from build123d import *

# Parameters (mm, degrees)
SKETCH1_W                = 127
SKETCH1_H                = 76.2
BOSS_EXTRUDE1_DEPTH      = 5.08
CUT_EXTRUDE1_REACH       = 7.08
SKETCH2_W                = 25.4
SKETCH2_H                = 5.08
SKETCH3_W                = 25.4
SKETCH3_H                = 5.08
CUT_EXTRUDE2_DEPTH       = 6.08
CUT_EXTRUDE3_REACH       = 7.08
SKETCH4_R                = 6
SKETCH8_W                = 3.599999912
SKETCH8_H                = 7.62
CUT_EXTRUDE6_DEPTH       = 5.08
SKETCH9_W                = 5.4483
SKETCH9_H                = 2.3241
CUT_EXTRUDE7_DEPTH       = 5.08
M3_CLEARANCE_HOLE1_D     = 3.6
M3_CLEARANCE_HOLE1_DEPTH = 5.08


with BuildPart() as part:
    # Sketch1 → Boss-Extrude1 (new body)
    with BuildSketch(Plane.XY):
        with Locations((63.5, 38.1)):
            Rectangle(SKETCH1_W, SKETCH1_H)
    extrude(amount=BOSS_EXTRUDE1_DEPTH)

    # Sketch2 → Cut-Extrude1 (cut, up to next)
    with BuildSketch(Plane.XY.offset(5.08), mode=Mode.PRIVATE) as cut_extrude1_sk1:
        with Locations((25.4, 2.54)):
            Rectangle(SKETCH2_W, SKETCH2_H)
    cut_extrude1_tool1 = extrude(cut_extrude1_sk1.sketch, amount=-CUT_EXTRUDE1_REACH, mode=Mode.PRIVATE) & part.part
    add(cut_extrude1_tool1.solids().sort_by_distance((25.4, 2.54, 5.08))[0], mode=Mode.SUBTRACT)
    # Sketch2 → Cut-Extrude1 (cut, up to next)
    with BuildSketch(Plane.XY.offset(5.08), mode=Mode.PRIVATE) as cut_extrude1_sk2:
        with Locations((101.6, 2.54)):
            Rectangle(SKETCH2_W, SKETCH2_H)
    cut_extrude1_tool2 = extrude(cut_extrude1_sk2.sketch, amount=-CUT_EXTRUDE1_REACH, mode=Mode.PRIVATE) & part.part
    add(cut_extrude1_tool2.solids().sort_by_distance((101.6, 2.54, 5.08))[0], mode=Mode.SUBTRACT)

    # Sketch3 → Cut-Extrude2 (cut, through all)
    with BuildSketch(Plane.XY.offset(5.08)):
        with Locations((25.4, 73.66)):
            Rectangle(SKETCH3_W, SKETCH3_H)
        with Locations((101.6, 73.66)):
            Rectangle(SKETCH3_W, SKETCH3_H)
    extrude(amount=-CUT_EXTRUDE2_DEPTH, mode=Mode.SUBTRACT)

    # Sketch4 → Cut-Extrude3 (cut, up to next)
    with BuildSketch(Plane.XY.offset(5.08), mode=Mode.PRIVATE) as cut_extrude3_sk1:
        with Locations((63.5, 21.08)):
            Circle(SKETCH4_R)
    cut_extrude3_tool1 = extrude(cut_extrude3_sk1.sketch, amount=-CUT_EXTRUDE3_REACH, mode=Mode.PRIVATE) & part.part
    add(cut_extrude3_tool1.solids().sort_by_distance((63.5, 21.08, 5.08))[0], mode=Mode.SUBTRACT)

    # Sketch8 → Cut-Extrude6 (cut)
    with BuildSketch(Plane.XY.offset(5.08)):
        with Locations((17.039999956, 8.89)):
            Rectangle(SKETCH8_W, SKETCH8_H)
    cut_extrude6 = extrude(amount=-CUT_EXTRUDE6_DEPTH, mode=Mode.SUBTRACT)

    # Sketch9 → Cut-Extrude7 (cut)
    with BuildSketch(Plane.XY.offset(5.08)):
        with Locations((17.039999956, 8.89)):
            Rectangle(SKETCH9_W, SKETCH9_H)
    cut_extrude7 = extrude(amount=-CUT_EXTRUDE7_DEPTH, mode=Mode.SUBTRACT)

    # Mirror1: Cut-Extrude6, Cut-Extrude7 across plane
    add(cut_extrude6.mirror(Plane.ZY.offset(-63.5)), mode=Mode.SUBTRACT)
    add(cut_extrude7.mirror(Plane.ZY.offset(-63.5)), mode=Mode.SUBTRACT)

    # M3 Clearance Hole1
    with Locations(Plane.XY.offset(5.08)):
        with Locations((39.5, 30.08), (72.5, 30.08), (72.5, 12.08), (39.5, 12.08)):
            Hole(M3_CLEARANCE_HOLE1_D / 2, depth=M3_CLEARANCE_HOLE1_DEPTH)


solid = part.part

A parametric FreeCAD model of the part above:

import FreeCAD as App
import Part
import Sketcher
Q = App.Units.Quantity


def add_polygon(sketch, points):
    """Adds a closed chain of lines whose ends are joined by coincident constraints."""
    first, n = sketch.GeometryCount, len(points)
    for a, b in zip(points, points[1:] + points[:1]):
        sketch.addGeometry(Part.LineSegment(App.Vector(*a, 0), App.Vector(*b, 0)), False)
    for i in range(n):
        sketch.addConstraint(Sketcher.Constraint("Coincident", first + i, 2, first + (i + 1) % n, 1))

doc = App.newDocument("Part")
params = doc.addObject("Spreadsheet::Sheet", "Params")
for row, (alias, value) in enumerate([
    ("sketch1_width", "5 in"),
    ("sketch1_height", "3 in"),
    ("pad1_length", "0.2 in"),
    ("sketch2_width", "1 in"),
    ("sketch2_height", "0.2 in"),
    ("sketch3_width", "1 in"),
    ("sketch3_height", "0.2 in"),
    ("sketch4_width", "1 in"),
    ("sketch4_height", "0.2 in"),
    ("sketch6_height", "0.3 in"),
    ("pocket5_length", "0.2 in"),
    ("pocket6_length", "0.2 in"),
    ("hole_diameter", "3.6 mm"),
    ("hole_depth", "0.2 in"),
], start=1):
    params.set(f"A{row}", alias)
    params.set(f"B{row}", "=" + value)
    params.setAlias(f"B{row}", alias)

body = doc.addObject("PartDesign::Body", "Body")

sketch1 = body.newObject("Sketcher::SketchObject", "Sketch")
sketch1.AttachmentSupport = (doc.getObject("XY_Plane"), [""])
sketch1.MapMode = "FlatFace"
add_polygon(sketch1, [(0, 76.2), (0, 0), (127, 0), (127, 76.2)])
sketch1.addConstraint([
    Sketcher.Constraint("Vertical", 0),
    Sketcher.Constraint("Horizontal", 1),
    Sketcher.Constraint("Vertical", 2),
    Sketcher.Constraint("Horizontal", 3),
    Sketcher.Constraint("Coincident", 0, 2, -1, 1),
    Sketcher.Constraint("DistanceX", 1, 1, 1, 2, Q("5 in")),
    Sketcher.Constraint("DistanceY", 0, 2, 0, 1, Q("3 in")),
])
sketch1.setExpression("Constraints[9]", "Params.sketch1_width")
sketch1.setExpression("Constraints[10]", "Params.sketch1_height")
pad1 = body.newObject("PartDesign::Pad", "Pad")
pad1.Profile = sketch1
pad1.setExpression("Length", "Params.pad1_length")

sketch2 = body.newObject("Sketcher::SketchObject", "Sketch001")
sketch2.AttachmentSupport = (doc.getObject("XY_Plane"), [""])
sketch2.MapMode = "FlatFace"
sketch2.AttachmentOffset = App.Placement(App.Vector(0, 0, 0.2 * 25.4), App.Rotation())
add_polygon(sketch2, [(12.7, 5.08), (12.7, 0), (38.1, 0), (38.1, 5.08)])
sketch2.addConstraint([
    Sketcher.Constraint("Vertical", 0),
    Sketcher.Constraint("Horizontal", 1),
    Sketcher.Constraint("Vertical", 2),
    Sketcher.Constraint("Horizontal", 3),
    Sketcher.Constraint("PointOnObject", 0, 2, -1),
    Sketcher.Constraint("DistanceX", 1, 1, 1, 2, Q("1 in")),
    Sketcher.Constraint("DistanceY", 0, 2, 0, 1, Q("0.2 in")),
    Sketcher.Constraint("DistanceX", -1, 1, 0, 2, Q("0.5 in")),
])
sketch2.setExpression("Constraints[9]", "Params.sketch2_width")
sketch2.setExpression("Constraints[10]", "Params.sketch2_height")
pocket1 = body.newObject("PartDesign::Pocket", "Pocket")
pocket1.Profile = sketch2
pocket1.Type = "UpToFirst"

sketch3 = body.newObject("Sketcher::SketchObject", "Sketch002")
sketch3.AttachmentSupport = (doc.getObject("XY_Plane"), [""])
sketch3.MapMode = "FlatFace"
sketch3.AttachmentOffset = App.Placement(App.Vector(0, 0, 0.2 * 25.4), App.Rotation())
add_polygon(sketch3, [(88.9, 5.08), (88.9, 0), (114.3, 0), (114.3, 5.08)])
sketch3.addConstraint([
    Sketcher.Constraint("Vertical", 0),
    Sketcher.Constraint("Horizontal", 1),
    Sketcher.Constraint("Vertical", 2),
    Sketcher.Constraint("Horizontal", 3),
    Sketcher.Constraint("PointOnObject", 0, 2, -1),
    Sketcher.Constraint("DistanceX", 1, 1, 1, 2, Q("1 in")),
    Sketcher.Constraint("DistanceY", 0, 2, 0, 1, Q("0.2 in")),
    Sketcher.Constraint("DistanceX", -1, 1, 0, 2, Q("3.5 in")),
])
sketch3.setExpression("Constraints[9]", "Params.sketch3_width")
sketch3.setExpression("Constraints[10]", "Params.sketch3_height")
pocket2 = body.newObject("PartDesign::Pocket", "Pocket001")
pocket2.Profile = sketch3
pocket2.Type = "UpToFirst"

sketch4 = body.newObject("Sketcher::SketchObject", "Sketch003")
sketch4.AttachmentSupport = (doc.getObject("XY_Plane"), [""])
sketch4.MapMode = "FlatFace"
sketch4.AttachmentOffset = App.Placement(App.Vector(0, 0, 0.2 * 25.4), App.Rotation())
add_polygon(sketch4, [(12.7, 76.2), (12.7, 71.12), (38.1, 71.12), (38.1, 76.2)])
add_polygon(sketch4, [(88.9, 76.2), (88.9, 71.12), (114.3, 71.12), (114.3, 76.2)])
sketch4.addConstraint([
    Sketcher.Constraint("Vertical", 0),
    Sketcher.Constraint("Horizontal", 1),
    Sketcher.Constraint("Vertical", 2),
    Sketcher.Constraint("Horizontal", 3),
    Sketcher.Constraint("Vertical", 4),
    Sketcher.Constraint("Horizontal", 5),
    Sketcher.Constraint("Vertical", 6),
    Sketcher.Constraint("Horizontal", 7),
    Sketcher.Constraint("Horizontal", 1, 2, 4, 2),
    Sketcher.Constraint("Horizontal", 3, 2, 6, 2),
    Sketcher.Constraint("Equal", 3, 5),
    Sketcher.Constraint("DistanceX", 1, 1, 1, 2, Q("1 in")),
    Sketcher.Constraint("DistanceY", 0, 2, 0, 1, Q("0.2 in")),
    Sketcher.Constraint("DistanceY", -1, 1, 2, 2, Q("3 in")),
    Sketcher.Constraint("DistanceX", 1, 2, 4, 2, Q("2 in")),
    Sketcher.Constraint("DistanceX", -1, 1, 0, 2, Q("0.5 in")),
])
sketch4.setExpression("Constraints[19]", "Params.sketch4_width")
sketch4.setExpression("Constraints[20]", "Params.sketch4_height")
pocket3 = body.newObject("PartDesign::Pocket", "Pocket002")
pocket3.Profile = sketch4
pocket3.Type = "ThroughAll"

sketch5 = body.newObject("Sketcher::SketchObject", "Sketch004")
sketch5.AttachmentSupport = (doc.getObject("XY_Plane"), [""])
sketch5.MapMode = "FlatFace"
sketch5.AttachmentOffset = App.Placement(App.Vector(0, 0, 0.2 * 25.4), App.Rotation())
sketch5.addGeometry(Part.Circle(App.Vector(63.5, 21.08, 0), App.Vector(0, 0, 1), 6), False)
sketch5.addConstraint([
    Sketcher.Constraint("DistanceX", -1, 1, 0, 3, Q("2.5 in")),
    Sketcher.Constraint("Diameter", 0, Q("12 mm")),
    Sketcher.Constraint("DistanceY", -1, 1, 0, 3, Q("21.08 mm")),
])
pocket4 = body.newObject("PartDesign::Pocket", "Pocket003")
pocket4.Profile = sketch5
pocket4.Type = "UpToFirst"

sketch6 = body.newObject("Sketcher::SketchObject", "Sketch005")
sketch6.AttachmentSupport = (doc.getObject("XY_Plane"), [""])
sketch6.MapMode = "FlatFace"
sketch6.AttachmentOffset = App.Placement(App.Vector(0, 0, 0.2 * 25.4), App.Rotation())
add_polygon(sketch6, [(15.24, 12.7), (15.24, 5.08), (18.84, 5.08), (18.84, 12.7)])
sketch6.addConstraint([
    Sketcher.Constraint("Vertical", 0),
    Sketcher.Constraint("Horizontal", 1),
    Sketcher.Constraint("Vertical", 2),
    Sketcher.Constraint("Horizontal", 3),
    Sketcher.Constraint("DistanceY", 0, 2, 0, 1, Q("0.3 in")),
    Sketcher.Constraint("DistanceX", -1, 1, 0, 2, Q("0.6 in")),
    Sketcher.Constraint("DistanceY", -1, 1, 0, 2, Q("0.2 in")),
    Sketcher.Constraint("DistanceX", 1, 1, 1, 2, Q("3.6 mm")),
])
sketch6.setExpression("Constraints[8]", "Params.sketch6_height")
pocket5 = body.newObject("PartDesign::Pocket", "Pocket004")
pocket5.Profile = sketch6
pocket5.setExpression("Length", "Params.pocket5_length")

sketch7 = body.newObject("Sketcher::SketchObject", "Sketch006")
sketch7.AttachmentSupport = (doc.getObject("XY_Plane"), [""])
sketch7.MapMode = "FlatFace"
sketch7.AttachmentOffset = App.Placement(App.Vector(0, 0, 0.2 * 25.4), App.Rotation())
add_polygon(sketch7, [(14.31585, 10.05205), (14.31585, 7.72795), (19.76415, 7.72795), (19.76415, 10.05205)])
sketch7.addConstraint([
    Sketcher.Constraint("Vertical", 0),
    Sketcher.Constraint("Horizontal", 1),
    Sketcher.Constraint("Vertical", 2),
    Sketcher.Constraint("Horizontal", 3),
    Sketcher.Constraint("DistanceX", 1, 1, 1, 2, Q("0.2145 in")),
    Sketcher.Constraint("DistanceY", 0, 2, 0, 1, Q("0.0915 in")),
    Sketcher.Constraint("DistanceX", -1, 1, 0, 2, Q("14.31585 mm")),
    Sketcher.Constraint("DistanceY", -1, 1, 0, 2, Q("7.72795 mm")),
])
pocket6 = body.newObject("PartDesign::Pocket", "Pocket005")
pocket6.Profile = sketch7
pocket6.setExpression("Length", "Params.pocket6_length")
doc.recompute()

datumplane = body.newObject("PartDesign::Plane", "DatumPlane")
datumplane.AttachmentSupport = (doc.getObject("YZ_Plane"), [""])
datumplane.MapMode = "FlatFace"
datumplane.AttachmentOffset = App.Placement(App.Vector(0, 0, 2.5 * 25.4), App.Rotation())
mirrored = body.newObject("PartDesign::Mirrored", "Mirrored")
mirrored.Originals = [pocket5, pocket6]
mirrored.MirrorPlane = (datumplane, [""])
body.Tip = mirrored

sketch8 = body.newObject("Sketcher::SketchObject", "Sketch007")
sketch8.AttachmentSupport = (doc.getObject("XY_Plane"), [""])
sketch8.MapMode = "FlatFace"
sketch8.AttachmentOffset = App.Placement(App.Vector(0, 0, 0.2 * 25.4), App.Rotation())
sketch8.addGeometry([
    Part.Circle(App.Vector(39.5, 30.08, 0), App.Vector(0, 0, 1), 1.8),
    Part.Circle(App.Vector(72.5, 30.08, 0), App.Vector(0, 0, 1), 1.8),
    Part.Circle(App.Vector(72.5, 12.08, 0), App.Vector(0, 0, 1), 1.8),
    Part.Circle(App.Vector(39.5, 12.08, 0), App.Vector(0, 0, 1), 1.8),
], False)
sketch8.addConstraint([
    Sketcher.Constraint("Equal", 0, 1),
    Sketcher.Constraint("Equal", 1, 2),
    Sketcher.Constraint("Equal", 2, 3),
    Sketcher.Constraint("Horizontal", 0, 3, 1, 3),
    Sketcher.Constraint("Horizontal", 2, 3, 3, 3),
    Sketcher.Constraint("Vertical", 1, 3, 2, 3),
    Sketcher.Constraint("Vertical", 0, 3, 3, 3),
    Sketcher.Constraint("Diameter", 0, Q("3.6 mm")),
    Sketcher.Constraint("DistanceX", -1, 1, 0, 3, Q("39.5 mm")),
    Sketcher.Constraint("DistanceY", -1, 1, 0, 3, Q("30.08 mm")),
    Sketcher.Constraint("DistanceX", -1, 1, 1, 3, Q("72.5 mm")),
    Sketcher.Constraint("DistanceY", -1, 1, 2, 3, Q("12.08 mm")),
])
doc.recompute()
hole = body.newObject("PartDesign::Hole", "Hole")
hole.Profile = sketch8
hole.ThreadType = "None"
hole.setExpression("Diameter", "Params.hole_diameter")
hole.DepthType = "Dimension"
hole.setExpression("Depth", "Params.hole_depth")
hole.DrillPoint = "Flat"

doc.recompute()
